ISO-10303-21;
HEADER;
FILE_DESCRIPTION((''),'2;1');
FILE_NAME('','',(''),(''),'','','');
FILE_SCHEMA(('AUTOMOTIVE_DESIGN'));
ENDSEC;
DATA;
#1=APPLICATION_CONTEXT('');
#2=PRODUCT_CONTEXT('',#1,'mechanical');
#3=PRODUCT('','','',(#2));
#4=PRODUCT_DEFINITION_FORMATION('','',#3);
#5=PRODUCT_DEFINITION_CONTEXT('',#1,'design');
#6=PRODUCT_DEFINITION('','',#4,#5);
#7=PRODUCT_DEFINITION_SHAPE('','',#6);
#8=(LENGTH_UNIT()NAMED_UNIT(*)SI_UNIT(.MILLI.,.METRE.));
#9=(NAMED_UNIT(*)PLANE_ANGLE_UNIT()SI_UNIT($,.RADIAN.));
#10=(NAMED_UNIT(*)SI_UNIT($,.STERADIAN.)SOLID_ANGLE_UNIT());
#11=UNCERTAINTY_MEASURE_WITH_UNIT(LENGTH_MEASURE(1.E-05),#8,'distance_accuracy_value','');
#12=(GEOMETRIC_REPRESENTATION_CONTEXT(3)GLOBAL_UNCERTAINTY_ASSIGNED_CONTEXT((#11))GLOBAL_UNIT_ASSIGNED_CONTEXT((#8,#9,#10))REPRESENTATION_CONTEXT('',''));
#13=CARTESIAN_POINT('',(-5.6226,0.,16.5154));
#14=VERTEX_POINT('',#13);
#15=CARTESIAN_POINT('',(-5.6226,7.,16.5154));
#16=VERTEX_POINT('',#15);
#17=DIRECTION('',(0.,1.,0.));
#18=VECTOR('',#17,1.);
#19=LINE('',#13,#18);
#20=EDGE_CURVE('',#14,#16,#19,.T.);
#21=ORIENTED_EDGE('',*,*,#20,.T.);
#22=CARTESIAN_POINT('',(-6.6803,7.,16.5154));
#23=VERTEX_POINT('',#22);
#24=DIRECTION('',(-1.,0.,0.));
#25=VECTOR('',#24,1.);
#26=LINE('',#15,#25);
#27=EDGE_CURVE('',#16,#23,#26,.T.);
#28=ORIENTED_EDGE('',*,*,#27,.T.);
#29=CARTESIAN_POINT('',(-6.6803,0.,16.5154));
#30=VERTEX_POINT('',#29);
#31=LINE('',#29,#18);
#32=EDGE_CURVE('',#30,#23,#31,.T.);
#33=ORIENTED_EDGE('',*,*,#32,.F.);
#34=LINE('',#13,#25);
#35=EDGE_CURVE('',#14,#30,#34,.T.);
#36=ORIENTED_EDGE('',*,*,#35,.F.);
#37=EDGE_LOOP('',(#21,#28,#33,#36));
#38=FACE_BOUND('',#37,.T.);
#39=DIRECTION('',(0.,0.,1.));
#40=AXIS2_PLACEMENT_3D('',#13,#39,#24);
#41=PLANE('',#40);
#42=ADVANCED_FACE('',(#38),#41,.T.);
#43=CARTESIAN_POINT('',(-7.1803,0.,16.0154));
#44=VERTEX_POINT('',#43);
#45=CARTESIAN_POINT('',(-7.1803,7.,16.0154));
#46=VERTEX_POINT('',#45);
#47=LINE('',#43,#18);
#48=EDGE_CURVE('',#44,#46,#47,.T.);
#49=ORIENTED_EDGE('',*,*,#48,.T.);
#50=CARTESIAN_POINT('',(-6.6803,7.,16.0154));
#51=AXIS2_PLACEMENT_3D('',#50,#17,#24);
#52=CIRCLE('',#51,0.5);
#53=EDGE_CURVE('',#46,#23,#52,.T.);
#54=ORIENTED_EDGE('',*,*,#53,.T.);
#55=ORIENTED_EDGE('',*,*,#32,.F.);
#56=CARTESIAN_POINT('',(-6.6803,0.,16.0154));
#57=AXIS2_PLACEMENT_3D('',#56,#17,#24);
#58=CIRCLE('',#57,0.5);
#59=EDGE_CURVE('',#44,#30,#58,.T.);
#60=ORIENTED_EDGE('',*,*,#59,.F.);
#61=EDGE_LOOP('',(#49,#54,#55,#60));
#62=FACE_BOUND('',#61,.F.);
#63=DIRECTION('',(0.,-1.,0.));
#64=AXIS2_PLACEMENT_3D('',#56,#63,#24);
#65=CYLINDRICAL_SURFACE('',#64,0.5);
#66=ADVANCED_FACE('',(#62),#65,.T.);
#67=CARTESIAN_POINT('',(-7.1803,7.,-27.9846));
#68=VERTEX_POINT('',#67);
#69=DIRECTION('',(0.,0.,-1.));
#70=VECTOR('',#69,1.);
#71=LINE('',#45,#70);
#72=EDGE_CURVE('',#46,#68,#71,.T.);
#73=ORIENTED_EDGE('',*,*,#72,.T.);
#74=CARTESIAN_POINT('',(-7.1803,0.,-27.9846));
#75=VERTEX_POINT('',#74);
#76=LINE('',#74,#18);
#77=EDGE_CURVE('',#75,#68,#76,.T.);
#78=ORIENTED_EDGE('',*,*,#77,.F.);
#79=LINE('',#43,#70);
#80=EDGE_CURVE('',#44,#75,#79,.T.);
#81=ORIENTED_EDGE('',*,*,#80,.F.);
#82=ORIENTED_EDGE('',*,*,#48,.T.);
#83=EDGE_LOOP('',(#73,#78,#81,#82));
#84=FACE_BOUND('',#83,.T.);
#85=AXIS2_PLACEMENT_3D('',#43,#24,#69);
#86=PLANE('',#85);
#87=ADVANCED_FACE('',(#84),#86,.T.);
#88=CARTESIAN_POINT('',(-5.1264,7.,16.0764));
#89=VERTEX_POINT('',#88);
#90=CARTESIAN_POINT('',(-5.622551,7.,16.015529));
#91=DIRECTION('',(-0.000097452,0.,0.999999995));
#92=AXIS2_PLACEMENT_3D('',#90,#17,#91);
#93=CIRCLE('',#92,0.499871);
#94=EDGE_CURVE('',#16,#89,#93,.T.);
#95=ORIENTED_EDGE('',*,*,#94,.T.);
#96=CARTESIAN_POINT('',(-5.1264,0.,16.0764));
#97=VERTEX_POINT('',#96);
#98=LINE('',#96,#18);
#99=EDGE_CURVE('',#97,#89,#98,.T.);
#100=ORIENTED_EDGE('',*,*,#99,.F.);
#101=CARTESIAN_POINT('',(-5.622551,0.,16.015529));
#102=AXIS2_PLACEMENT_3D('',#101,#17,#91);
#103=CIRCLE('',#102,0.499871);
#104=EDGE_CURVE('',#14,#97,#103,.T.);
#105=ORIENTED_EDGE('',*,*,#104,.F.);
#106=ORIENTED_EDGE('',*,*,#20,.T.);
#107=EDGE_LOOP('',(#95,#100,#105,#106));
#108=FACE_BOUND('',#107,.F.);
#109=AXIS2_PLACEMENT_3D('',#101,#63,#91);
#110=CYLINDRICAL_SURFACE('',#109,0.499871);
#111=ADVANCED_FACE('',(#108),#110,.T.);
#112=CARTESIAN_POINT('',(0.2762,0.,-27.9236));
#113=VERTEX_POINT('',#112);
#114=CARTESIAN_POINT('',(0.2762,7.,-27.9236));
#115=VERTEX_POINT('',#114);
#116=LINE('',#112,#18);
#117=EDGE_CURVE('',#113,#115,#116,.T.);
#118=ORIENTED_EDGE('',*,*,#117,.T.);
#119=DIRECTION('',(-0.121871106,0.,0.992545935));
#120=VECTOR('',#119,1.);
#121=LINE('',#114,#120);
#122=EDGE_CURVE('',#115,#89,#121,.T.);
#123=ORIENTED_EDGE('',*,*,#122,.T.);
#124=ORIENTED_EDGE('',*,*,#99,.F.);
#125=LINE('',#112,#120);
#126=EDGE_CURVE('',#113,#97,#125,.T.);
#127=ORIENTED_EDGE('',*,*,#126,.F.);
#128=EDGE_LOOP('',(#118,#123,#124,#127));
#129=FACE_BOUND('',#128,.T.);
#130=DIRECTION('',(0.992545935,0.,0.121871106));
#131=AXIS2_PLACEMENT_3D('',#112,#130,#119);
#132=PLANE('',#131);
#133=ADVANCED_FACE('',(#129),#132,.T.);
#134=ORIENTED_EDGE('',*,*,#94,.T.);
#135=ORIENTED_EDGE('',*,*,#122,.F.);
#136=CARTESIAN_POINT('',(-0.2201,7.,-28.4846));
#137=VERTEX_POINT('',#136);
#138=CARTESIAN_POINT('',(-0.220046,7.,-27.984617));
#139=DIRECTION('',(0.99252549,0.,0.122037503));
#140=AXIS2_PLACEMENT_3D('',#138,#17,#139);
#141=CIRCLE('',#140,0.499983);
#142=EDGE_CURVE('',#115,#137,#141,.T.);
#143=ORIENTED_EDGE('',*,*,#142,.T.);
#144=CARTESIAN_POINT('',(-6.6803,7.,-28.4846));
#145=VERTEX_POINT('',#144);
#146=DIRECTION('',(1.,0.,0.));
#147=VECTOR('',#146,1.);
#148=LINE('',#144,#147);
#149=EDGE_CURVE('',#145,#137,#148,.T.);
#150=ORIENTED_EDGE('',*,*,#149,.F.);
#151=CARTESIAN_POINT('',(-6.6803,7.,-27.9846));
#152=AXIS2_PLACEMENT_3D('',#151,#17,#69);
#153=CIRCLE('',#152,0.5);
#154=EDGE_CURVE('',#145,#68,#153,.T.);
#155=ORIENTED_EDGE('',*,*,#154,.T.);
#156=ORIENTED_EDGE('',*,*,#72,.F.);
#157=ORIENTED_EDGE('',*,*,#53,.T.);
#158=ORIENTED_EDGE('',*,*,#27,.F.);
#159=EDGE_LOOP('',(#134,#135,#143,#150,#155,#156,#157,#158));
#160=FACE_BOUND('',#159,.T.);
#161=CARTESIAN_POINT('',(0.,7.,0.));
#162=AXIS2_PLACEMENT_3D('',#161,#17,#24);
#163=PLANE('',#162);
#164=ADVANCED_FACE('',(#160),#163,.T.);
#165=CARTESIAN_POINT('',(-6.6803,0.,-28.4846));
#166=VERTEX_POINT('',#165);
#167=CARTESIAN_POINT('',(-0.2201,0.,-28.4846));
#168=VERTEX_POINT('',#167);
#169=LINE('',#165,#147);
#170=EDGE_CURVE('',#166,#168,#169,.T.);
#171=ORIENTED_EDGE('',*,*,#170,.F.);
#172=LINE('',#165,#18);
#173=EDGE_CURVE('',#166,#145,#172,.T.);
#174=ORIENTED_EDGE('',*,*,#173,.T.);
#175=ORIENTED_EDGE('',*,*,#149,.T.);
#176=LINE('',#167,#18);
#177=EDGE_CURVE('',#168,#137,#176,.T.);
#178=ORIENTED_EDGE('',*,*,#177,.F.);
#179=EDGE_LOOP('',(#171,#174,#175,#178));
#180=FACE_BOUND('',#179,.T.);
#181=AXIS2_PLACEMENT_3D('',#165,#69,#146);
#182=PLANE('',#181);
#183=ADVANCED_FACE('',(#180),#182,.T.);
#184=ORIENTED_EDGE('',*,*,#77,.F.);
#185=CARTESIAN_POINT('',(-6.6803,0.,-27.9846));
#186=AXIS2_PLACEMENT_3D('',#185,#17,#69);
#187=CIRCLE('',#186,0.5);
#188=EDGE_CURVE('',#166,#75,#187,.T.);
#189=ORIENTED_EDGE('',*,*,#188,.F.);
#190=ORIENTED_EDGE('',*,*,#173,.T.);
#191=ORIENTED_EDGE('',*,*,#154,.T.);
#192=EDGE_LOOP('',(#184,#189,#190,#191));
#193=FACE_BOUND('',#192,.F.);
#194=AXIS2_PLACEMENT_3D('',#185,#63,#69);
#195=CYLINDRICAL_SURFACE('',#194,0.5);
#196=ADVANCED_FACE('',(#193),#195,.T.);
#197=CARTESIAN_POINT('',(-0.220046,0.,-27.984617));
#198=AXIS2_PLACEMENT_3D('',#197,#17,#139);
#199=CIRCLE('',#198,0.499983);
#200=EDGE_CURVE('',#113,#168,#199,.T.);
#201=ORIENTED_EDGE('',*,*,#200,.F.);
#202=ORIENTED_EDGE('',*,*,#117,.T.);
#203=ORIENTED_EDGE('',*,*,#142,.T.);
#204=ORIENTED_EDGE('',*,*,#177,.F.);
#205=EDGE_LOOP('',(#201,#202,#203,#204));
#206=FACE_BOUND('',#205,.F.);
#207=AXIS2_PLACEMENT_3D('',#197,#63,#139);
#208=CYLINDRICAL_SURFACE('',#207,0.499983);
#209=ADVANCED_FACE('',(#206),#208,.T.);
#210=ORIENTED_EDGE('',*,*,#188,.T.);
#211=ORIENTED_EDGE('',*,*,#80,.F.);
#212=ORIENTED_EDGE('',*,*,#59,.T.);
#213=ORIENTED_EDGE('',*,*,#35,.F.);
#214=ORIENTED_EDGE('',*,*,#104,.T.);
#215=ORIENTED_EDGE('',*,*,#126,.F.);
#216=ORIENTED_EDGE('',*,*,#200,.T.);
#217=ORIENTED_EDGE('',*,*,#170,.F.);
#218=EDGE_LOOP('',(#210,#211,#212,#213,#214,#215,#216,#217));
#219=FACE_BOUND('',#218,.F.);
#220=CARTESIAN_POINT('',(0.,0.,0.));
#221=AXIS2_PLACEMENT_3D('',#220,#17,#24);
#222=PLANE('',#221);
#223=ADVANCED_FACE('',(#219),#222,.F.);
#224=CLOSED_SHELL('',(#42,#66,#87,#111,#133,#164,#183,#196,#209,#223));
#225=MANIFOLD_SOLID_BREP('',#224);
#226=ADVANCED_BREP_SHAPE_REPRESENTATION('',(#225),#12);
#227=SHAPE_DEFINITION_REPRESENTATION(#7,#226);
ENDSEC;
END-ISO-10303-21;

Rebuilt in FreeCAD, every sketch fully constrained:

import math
import FreeCAD as App
import Part
import Sketcher
Q = App.Units.Quantity

doc = App.newDocument("Part")
body = doc.addObject("PartDesign::Body", "Body")

sketch1 = body.newObject("Sketcher::SketchObject", "Sketch")
sketch1.AttachmentSupport = (doc.getObject("XZ_Plane"), [""])
sketch1.MapMode = "FlatFace"
sketch1.addGeometry(Part.LineSegment(App.Vector(-7.1803, -27.9846, 0), App.Vector(-7.1803, 16.0154, 0)), False)
sketch1.addGeometry(Part.ArcOfCircle(Part.Circle(App.Vector(-6.6803, 16.0154, 0), App.Vector(0, 0, 1), 0.5), math.radians(90), math.radians(180)), False)
sketch1.addGeometry(Part.LineSegment(App.Vector(-6.6803, 16.5154, 0), App.Vector(-5.6226, 16.5154, 0)), False)
sketch1.addGeometry(Part.ArcOfCircle(Part.Circle(App.Vector(-5.6226, 16.0154, 0), App.Vector(0, 0, 1), 0.5), math.radians(7.008452), math.radians(90)), False)
sketch1.addGeometry(Part.LineSegment(App.Vector(-5.1264, 16.0764, 0), App.Vector(0.2762, -27.9236, 0)), False)
sketch1.addGeometry(Part.ArcOfCircle(Part.Circle(App.Vector(-0.2201, -27.9846, 0), App.Vector(0, 0, 1), 0.500035), math.radians(-90), math.radians(7.007054)), False)
sketch1.addGeometry(Part.LineSegment(App.Vector(-0.2201, -28.4846, 0), App.Vector(-6.6803, -28.4846, 0)), False)
sketch1.addGeometry(Part.ArcOfCircle(Part.Circle(App.Vector(-6.6803, -27.9846, 0), App.Vector(0, 0, 1), 0.5), math.radians(180), math.radians(270)), False)
sketch1.addConstraint(Sketcher.Constraint("Tangent", 0, 2, 1, 2))
sketch1.addConstraint(Sketcher.Constraint("Tangent", 1, 1, 2, 1))
sketch1.addConstraint(Sketcher.Constraint("Tangent", 2, 2, 3, 2))
sketch1.addConstraint(Sketcher.Constraint("Tangent", 3, 1, 4, 1))
sketch1.addConstraint(Sketcher.Constraint("Tangent", 4, 2, 5, 2))
sketch1.addConstraint(Sketcher.Constraint("Tangent", 5, 1, 6, 1))
sketch1.addConstraint(Sketcher.Constraint("Tangent", 6, 2, 7, 2))
sketch1.addConstraint(Sketcher.Constraint("Tangent", 7, 1, 0, 1))
sketch1.addConstraint(Sketcher.Constraint("Vertical", 0))
sketch1.addConstraint(Sketcher.Constraint("Horizontal", 2))
sketch1.addConstraint(Sketcher.Constraint("Horizontal", 6))
sketch1.addConstraint(Sketcher.Constraint("Equal", 1, 3))
sketch1.addConstraint(Sketcher.Constraint("Equal", 3, 5))
sketch1.addConstraint(Sketcher.Constraint("Equal", 5, 7))
sketch1.addConstraint(Sketcher.Constraint("Radius", 1, Q("0.5 mm")))
sketch1.addConstraint(Sketcher.Constraint("DistanceY", 0, 1, 0, 2, Q("44 mm")))
sketch1.addConstraint(Sketcher.Constraint("Angle", 4, Q("-83 deg")))
sketch1.addConstraint(Sketcher.Constraint("DistanceX", 5, 3, -1, 1, Q("0.22 mm")))
sketch1.addConstraint(Sketcher.Constraint("DistanceX", 2, 1, 2, 2, Q("1.0577 mm")))
sketch1.addConstraint(Sketcher.Constraint("DistanceY", -1, 1, 1, 3, Q("16.0154 mm")))
pad1 = body.newObject("PartDesign::Pad", "Pad")
pad1.Profile = sketch1
pad1.Length = 7
pad1.Reversed = True

doc.recompute()
